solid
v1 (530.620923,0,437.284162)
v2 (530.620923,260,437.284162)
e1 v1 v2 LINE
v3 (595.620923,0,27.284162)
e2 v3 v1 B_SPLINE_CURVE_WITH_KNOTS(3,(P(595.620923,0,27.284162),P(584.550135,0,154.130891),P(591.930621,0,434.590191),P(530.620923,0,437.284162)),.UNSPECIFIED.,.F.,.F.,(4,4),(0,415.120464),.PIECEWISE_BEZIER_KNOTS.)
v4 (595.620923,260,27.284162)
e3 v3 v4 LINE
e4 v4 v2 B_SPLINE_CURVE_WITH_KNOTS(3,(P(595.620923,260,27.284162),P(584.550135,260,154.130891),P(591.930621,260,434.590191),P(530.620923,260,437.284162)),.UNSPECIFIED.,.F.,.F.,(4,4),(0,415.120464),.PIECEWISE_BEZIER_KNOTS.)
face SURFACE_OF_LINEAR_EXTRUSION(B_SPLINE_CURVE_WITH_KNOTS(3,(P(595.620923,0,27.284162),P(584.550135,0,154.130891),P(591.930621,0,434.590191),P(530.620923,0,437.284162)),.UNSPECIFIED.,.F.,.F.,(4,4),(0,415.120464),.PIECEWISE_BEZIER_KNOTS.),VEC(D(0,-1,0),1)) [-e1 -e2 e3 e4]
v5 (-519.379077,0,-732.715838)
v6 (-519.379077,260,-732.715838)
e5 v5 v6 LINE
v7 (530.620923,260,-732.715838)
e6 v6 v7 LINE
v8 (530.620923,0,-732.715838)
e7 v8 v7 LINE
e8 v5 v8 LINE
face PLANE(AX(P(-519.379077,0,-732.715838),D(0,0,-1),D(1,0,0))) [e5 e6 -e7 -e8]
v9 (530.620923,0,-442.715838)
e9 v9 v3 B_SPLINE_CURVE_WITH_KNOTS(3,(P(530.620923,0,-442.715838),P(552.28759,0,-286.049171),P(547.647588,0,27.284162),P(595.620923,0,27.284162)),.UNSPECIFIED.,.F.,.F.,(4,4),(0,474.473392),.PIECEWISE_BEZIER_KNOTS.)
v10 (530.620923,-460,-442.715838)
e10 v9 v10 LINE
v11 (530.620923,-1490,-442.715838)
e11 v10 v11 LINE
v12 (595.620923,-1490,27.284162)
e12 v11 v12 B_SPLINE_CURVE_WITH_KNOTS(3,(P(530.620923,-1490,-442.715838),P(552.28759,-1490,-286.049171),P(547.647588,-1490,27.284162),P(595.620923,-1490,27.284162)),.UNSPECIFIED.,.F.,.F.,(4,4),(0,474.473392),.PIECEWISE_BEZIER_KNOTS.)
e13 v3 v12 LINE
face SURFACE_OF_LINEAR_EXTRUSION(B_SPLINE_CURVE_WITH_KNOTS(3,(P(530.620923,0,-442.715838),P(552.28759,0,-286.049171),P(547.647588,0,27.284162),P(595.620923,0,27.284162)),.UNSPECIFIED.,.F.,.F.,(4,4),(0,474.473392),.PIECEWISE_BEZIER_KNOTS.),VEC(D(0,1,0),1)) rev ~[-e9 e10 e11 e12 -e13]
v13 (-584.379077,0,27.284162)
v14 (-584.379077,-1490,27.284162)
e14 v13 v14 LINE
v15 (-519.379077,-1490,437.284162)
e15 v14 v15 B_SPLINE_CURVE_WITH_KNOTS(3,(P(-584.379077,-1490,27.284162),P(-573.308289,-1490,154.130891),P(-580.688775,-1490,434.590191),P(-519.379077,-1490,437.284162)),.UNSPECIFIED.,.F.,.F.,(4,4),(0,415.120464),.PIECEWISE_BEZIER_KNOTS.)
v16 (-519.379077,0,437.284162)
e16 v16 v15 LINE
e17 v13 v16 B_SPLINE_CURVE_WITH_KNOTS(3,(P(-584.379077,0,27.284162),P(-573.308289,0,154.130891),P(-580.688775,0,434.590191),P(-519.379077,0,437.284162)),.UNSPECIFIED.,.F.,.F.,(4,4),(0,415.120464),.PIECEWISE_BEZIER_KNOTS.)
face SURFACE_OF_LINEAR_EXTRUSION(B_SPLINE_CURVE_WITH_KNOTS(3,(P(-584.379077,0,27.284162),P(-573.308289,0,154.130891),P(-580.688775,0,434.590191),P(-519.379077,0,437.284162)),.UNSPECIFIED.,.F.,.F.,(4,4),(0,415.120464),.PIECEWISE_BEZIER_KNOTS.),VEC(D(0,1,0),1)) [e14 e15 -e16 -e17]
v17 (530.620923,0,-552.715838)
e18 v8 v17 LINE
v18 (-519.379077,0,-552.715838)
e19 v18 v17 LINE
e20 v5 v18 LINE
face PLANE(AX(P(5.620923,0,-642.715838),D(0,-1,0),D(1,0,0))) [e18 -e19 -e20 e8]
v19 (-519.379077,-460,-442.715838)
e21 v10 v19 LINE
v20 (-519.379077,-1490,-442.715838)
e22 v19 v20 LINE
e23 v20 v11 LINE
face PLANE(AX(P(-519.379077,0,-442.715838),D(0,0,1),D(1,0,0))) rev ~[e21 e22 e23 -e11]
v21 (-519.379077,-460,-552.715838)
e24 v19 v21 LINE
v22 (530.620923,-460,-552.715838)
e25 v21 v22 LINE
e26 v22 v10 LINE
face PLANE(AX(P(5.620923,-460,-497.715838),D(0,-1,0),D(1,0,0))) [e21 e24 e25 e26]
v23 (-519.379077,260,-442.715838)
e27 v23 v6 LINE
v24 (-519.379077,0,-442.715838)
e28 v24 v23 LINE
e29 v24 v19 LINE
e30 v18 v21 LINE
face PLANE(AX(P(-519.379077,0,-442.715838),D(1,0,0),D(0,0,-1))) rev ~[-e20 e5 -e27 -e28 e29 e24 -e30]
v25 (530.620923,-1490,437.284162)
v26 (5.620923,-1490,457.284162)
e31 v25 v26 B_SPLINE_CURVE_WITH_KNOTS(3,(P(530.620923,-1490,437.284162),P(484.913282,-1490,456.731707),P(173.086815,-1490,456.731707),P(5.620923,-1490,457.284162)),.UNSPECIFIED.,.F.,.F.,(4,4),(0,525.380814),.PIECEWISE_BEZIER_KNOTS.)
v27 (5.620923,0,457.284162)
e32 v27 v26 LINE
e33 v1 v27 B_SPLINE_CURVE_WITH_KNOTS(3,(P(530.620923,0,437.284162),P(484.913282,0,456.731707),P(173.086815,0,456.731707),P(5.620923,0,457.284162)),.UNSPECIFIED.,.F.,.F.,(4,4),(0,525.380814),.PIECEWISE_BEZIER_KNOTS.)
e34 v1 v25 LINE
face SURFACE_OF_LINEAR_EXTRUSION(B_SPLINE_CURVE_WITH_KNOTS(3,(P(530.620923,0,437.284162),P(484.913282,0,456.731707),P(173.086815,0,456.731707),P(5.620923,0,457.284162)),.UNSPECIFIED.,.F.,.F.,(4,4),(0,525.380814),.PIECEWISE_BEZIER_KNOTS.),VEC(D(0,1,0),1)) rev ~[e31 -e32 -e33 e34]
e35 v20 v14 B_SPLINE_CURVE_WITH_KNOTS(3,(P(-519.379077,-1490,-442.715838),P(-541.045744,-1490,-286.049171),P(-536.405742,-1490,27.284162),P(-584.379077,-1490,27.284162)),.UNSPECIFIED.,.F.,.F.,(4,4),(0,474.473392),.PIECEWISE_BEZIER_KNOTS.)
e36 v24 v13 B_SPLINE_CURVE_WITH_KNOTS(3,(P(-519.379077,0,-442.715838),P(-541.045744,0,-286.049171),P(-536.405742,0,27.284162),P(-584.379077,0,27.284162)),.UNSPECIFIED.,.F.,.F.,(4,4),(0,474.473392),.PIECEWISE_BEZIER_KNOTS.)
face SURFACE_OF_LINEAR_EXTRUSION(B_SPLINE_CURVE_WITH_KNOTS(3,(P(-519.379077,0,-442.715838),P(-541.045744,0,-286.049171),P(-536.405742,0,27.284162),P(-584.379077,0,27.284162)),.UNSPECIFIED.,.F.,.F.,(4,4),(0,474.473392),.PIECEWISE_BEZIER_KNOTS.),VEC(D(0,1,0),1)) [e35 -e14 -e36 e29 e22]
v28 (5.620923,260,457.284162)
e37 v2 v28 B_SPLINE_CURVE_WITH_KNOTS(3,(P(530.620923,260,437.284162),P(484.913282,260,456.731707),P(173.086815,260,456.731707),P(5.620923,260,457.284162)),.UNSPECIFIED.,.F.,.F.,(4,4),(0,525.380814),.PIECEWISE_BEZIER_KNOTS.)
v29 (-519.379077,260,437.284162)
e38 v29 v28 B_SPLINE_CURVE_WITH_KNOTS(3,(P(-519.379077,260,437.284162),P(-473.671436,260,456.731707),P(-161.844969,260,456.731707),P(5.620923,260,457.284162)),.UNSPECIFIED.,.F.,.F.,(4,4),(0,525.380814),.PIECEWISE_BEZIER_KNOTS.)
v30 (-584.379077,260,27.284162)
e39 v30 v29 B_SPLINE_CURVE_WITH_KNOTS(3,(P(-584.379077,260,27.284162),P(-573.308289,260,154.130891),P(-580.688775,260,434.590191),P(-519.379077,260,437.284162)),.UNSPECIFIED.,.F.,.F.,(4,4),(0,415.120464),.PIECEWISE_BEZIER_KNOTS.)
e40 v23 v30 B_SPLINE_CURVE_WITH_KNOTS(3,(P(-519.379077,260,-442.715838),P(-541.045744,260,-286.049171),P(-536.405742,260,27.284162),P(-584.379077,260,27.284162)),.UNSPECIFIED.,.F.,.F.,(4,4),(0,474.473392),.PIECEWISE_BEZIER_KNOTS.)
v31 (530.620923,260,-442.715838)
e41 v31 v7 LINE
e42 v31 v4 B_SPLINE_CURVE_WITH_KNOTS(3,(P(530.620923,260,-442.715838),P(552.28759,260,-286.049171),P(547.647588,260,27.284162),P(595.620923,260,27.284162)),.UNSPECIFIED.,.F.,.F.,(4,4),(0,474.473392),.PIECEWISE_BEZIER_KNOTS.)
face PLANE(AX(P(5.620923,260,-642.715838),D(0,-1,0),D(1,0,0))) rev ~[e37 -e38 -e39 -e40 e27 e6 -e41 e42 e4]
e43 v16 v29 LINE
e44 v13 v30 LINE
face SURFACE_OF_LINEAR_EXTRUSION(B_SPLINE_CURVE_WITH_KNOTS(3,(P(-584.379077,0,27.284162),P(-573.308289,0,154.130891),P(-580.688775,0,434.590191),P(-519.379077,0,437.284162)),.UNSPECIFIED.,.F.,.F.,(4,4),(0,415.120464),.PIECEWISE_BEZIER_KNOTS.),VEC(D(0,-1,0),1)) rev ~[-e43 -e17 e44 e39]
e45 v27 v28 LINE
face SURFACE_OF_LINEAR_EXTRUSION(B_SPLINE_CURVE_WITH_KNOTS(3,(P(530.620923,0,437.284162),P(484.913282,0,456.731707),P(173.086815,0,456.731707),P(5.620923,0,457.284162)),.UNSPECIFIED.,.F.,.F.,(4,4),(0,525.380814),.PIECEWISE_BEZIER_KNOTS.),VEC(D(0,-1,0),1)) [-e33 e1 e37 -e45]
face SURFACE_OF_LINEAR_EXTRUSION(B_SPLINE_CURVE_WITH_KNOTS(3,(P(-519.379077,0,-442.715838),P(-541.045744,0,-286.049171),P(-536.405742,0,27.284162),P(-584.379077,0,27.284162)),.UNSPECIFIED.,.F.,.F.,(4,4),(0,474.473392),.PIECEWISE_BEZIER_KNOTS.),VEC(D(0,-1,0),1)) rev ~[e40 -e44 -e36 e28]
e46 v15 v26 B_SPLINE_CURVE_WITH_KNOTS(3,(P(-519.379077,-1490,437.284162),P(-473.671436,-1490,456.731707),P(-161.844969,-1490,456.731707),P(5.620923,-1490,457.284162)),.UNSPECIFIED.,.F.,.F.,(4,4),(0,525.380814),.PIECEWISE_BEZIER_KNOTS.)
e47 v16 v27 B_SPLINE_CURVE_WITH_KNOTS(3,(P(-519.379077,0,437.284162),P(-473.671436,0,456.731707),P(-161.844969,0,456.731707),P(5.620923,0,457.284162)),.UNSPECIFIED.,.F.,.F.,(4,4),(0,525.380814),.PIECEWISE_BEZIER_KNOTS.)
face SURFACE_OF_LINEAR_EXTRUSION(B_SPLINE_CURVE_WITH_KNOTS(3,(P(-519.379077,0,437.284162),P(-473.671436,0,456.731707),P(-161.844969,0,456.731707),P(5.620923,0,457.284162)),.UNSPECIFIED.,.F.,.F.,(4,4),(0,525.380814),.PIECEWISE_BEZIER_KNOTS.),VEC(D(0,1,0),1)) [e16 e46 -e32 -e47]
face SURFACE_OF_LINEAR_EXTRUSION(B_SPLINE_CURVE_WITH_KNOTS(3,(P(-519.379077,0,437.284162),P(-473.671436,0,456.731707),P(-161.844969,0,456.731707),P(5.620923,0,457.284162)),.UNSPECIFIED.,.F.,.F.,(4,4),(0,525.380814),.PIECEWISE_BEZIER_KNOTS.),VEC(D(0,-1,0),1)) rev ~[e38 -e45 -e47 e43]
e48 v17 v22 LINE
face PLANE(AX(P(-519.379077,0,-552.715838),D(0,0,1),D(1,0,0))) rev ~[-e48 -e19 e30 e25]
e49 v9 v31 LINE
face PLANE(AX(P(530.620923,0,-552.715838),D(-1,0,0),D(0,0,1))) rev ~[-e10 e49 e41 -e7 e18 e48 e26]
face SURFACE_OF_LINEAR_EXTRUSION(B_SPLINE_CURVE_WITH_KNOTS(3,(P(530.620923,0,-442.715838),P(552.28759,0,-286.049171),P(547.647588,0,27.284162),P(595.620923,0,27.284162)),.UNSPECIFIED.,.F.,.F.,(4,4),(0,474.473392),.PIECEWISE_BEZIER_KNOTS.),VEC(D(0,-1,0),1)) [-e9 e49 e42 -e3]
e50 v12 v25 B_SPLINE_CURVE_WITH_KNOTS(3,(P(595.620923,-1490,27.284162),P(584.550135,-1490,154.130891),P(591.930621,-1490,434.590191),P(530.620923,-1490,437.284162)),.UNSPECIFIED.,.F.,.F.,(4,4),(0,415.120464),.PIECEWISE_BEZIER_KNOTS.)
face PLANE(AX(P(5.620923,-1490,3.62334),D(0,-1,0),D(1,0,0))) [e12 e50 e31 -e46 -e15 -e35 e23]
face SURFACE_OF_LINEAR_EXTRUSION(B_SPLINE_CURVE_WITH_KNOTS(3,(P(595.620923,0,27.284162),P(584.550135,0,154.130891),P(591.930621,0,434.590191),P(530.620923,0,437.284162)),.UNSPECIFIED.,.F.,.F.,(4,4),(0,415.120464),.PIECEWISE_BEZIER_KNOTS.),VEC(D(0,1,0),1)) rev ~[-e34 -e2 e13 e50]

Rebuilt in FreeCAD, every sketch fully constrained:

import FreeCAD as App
import Part
import Sketcher


def add_polygon(sketch, points):
    """Adds a closed chain of lines whose ends are joined by coincident constraints."""
    first, n = sketch.GeometryCount, len(points)
    for a, b in zip(points, points[1:] + points[:1]):
        sketch.addGeometry(Part.LineSegment(App.Vector(*a, 0), App.Vector(*b, 0)), False)
    for i in range(n):
        sketch.addConstraint(Sketcher.Constraint("Coincident", first + i, 2, first + (i + 1) % n, 1))

doc = App.newDocument("Part")
params = doc.addObject("Spreadsheet::Sheet", "Params")
for row, (alias, value) in enumerate([
    ("pad1_length", "260 mm"),
    ("sketch2_width", "1050 mm"),
    ("sketch2_height", "110 mm"),
    ("pad2_length", "260 mm"),
    ("sketch3_width", "1050 mm"),
    ("sketch3_height", "180 mm"),
    ("pad3_length", "260 mm"),
    ("pad4_length", "1490 mm"),
    ("sketch5_width", "1050 mm"),
    ("sketch5_height", "110 mm"),
    ("pad5_length", "460 mm"),
], start=1):
    params.set(f"A{row}", alias)
    params.set(f"B{row}", "=" + value)
    params.setAlias(f"B{row}", alias)

body = doc.addObject("PartDesign::Body", "Body")

sketch1 = doc.addObject("Sketcher::SketchObject", "Sketch")
body.addObject(sketch1)
sketch1.AttachmentSupport = (doc.XZ_Plane, [""])
sketch1.MapMode = "FlatFace"
sketch1.addGeometry(Part.LineSegment(App.Vector(-519.379077, -442.715838, 0), App.Vector(530.620923, -442.715838, 0)), False)
sketch1.addGeometry(Part.BSplineCurve([App.Vector(530.620923, -442.715838, 0), App.Vector(552.28759, -286.049171, 0), App.Vector(547.647588, 27.284162, 0), App.Vector(595.620923, 27.284162, 0)], [4, 4], [0, 474.473392], False, 3, [1, 1, 1, 1], False), False)
sketch1.addGeometry(Part.BSplineCurve([App.Vector(595.620923, 27.284162, 0), App.Vector(584.550135, 154.130891, 0), App.Vector(591.930621, 434.590191, 0), App.Vector(530.620923, 437.284162, 0)], [4, 4], [0, 415.120464], False, 3, [1, 1, 1, 1], False), False)
sketch1.addGeometry(Part.BSplineCurve([App.Vector(530.620923, 437.284162, 0), App.Vector(484.913282, 456.731707, 0), App.Vector(173.086815, 456.731707, 0), App.Vector(5.620923, 457.284162, 0)], [4, 4], [0, 525.380814], False, 3, [1, 1, 1, 1], False), False)
sketch1.addGeometry(Part.BSplineCurve([App.Vector(-519.379077, 437.284162, 0), App.Vector(-473.671436, 456.731707, 0), App.Vector(-161.844969, 456.731707, 0), App.Vector(5.620923, 457.284162, 0)], [4, 4], [0, 525.380814], False, 3, [1, 1, 1, 1], False), False)
sketch1.addGeometry(Part.BSplineCurve([App.Vector(-584.379077, 27.284162, 0), App.Vector(-573.308289, 154.130891, 0), App.Vector(-580.688775, 434.590191, 0), App.Vector(-519.379077, 437.284162, 0)], [4, 4], [0, 415.120464], False, 3, [1, 1, 1, 1], False), False)
sketch1.addGeometry(Part.BSplineCurve([App.Vector(-519.379077, -442.715838, 0), App.Vector(-541.045744, -286.049171, 0), App.Vector(-536.405742, 27.284162, 0), App.Vector(-584.379077, 27.284162, 0)], [4, 4], [0, 474.473392], False, 3, [1, 1, 1, 1], False), False)
sketch1.addConstraint(Sketcher.Constraint("Block", 1))
sketch1.addConstraint(Sketcher.Constraint("Block", 2))
sketch1.addConstraint(Sketcher.Constraint("Block", 3))
sketch1.addConstraint(Sketcher.Constraint("Block", 4))
sketch1.addConstraint(Sketcher.Constraint("Block", 5))
sketch1.addConstraint(Sketcher.Constraint("Block", 6))
sketch1.addConstraint(Sketcher.Constraint("Coincident", 0, 2, 1, 1))
sketch1.addConstraint(Sketcher.Constraint("Coincident", 6, 1, 0, 1))
pad1 = doc.addObject("PartDesign::Pad", "Pad")
body.addObject(pad1)
pad1.Profile = sketch1
pad1.setExpression("Length", "Params.pad1_length")
pad1.Reversed = True

sketch2 = doc.addObject("Sketcher::SketchObject", "Sketch001")
body.addObject(sketch2)
sketch2.AttachmentSupport = (doc.XZ_Plane, [""])
sketch2.MapMode = "FlatFace"
add_polygon(sketch2, [(531, -443), (-519, -443), (-519, -553), (531, -553)])
sketch2.addConstraint(Sketcher.Constraint("Horizontal", 0))
sketch2.addConstraint(Sketcher.Constraint("Vertical", 1))
sketch2.addConstraint(Sketcher.Constraint("Horizontal", 2))
sketch2.addConstraint(Sketcher.Constraint("Vertical", 3))
sketch2.addConstraint(Sketcher.Constraint("DistanceX", 0, 2, 0, 1, 1050.0))
sketch2.addConstraint(Sketcher.Constraint("DistanceY", 1, 2, 1, 1, 110.0))
sketch2.addConstraint(Sketcher.Constraint("DistanceY", 0, 2, -1, 1, 442.715838))
sketch2.addConstraint(Sketcher.Constraint("DistanceX", 0, 2, -1, 1, 519.379077))
sketch2.setExpression("Constraints[8]", "Params.sketch2_width")
sketch2.setExpression("Constraints[9]", "Params.sketch2_height")
pad2 = doc.addObject("PartDesign::Pad", "Pad001")
body.addObject(pad2)
pad2.Profile = sketch2
pad2.setExpression("Length", "Params.pad2_length")
pad2.Reversed = True

sketch3 = doc.addObject("Sketcher::SketchObject", "Sketch002")
body.addObject(sketch3)
sketch3.AttachmentSupport = (doc.XZ_Plane, [""])
sketch3.MapMode = "FlatFace"
add_polygon(sketch3, [(-519, -553), (-519, -733), (531, -733), (531, -553)])
sketch3.addConstraint(Sketcher.Constraint("Vertical", 0))
sketch3.addConstraint(Sketcher.Constraint("Horizontal", 1))
sketch3.addConstraint(Sketcher.Constraint("Vertical", 2))
sketch3.addConstraint(Sketcher.Constraint("Horizontal", 3))
sketch3.addConstraint(Sketcher.Constraint("DistanceX", 1, 1, 1, 2, 1050.0))
sketch3.addConstraint(Sketcher.Constraint("DistanceY", 0, 2, 0, 1, 180.0))
sketch3.addConstraint(Sketcher.Constraint("DistanceY", 0, 2, -1, 1, 732.715838))
sketch3.addConstraint(Sketcher.Constraint("DistanceX", 0, 2, -1, 1, 519.379077))
sketch3.setExpression("Constraints[8]", "Params.sketch3_width")
sketch3.setExpression("Constraints[9]", "Params.sketch3_height")
pad3 = doc.addObject("PartDesign::Pad", "Pad002")
body.addObject(pad3)
pad3.Profile = sketch3
pad3.setExpression("Length", "Params.pad3_length")
pad3.Reversed = True

sketch4 = doc.addObject("Sketcher::SketchObject", "Sketch003")
body.addObject(sketch4)
sketch4.AttachmentSupport = (doc.XZ_Plane, [""])
sketch4.MapMode = "FlatFace"
sketch4.addGeometry(Part.LineSegment(App.Vector(-519.379077, -442.715838, 0), App.Vector(530.620923, -442.715838, 0)), False)
sketch4.addGeometry(Part.BSplineCurve([App.Vector(530.620923, -442.715838, 0), App.Vector(552.28759, -286.049171, 0), App.Vector(547.647588, 27.284162, 0), App.Vector(595.620923, 27.284162, 0)], [4, 4], [0, 474.473392], False, 3, [1, 1, 1, 1], False), False)
sketch4.addGeometry(Part.BSplineCurve([App.Vector(595.620923, 27.284162, 0), App.Vector(584.550135, 154.130891, 0), App.Vector(591.930621, 434.590191, 0), App.Vector(530.620923, 437.284162, 0)], [4, 4], [0, 415.120464], False, 3, [1, 1, 1, 1], False), False)
sketch4.addGeometry(Part.BSplineCurve([App.Vector(530.620923, 437.284162, 0), App.Vector(484.913282, 456.731707, 0), App.Vector(173.086815, 456.731707, 0), App.Vector(5.620923, 457.284162, 0)], [4, 4], [0, 525.380814], False, 3, [1, 1, 1, 1], False), False)
sketch4.addGeometry(Part.BSplineCurve([App.Vector(-519.379077, 437.284162, 0), App.Vector(-473.671436, 456.731707, 0), App.Vector(-161.844969, 456.731707, 0), App.Vector(5.620923, 457.284162, 0)], [4, 4], [0, 525.380814], False, 3, [1, 1, 1, 1], False), False)
sketch4.addGeometry(Part.BSplineCurve([App.Vector(-584.379077, 27.284162, 0), App.Vector(-573.308289, 154.130891, 0), App.Vector(-580.688775, 434.590191, 0), App.Vector(-519.379077, 437.284162, 0)], [4, 4], [0, 415.120464], False, 3, [1, 1, 1, 1], False), False)
sketch4.addGeometry(Part.BSplineCurve([App.Vector(-519.379077, -442.715838, 0), App.Vector(-541.045744, -286.049171, 0), App.Vector(-536.405742, 27.284162, 0), App.Vector(-584.379077, 27.284162, 0)], [4, 4], [0, 474.473392], False, 3, [1, 1, 1, 1], False), False)
sketch4.addConstraint(Sketcher.Constraint("Block", 1))
sketch4.addConstraint(Sketcher.Constraint("Block", 2))
sketch4.addConstraint(Sketcher.Constraint("Block", 3))
sketch4.addConstraint(Sketcher.Constraint("Block", 4))
sketch4.addConstraint(Sketcher.Constraint("Block", 5))
sketch4.addConstraint(Sketcher.Constraint("Block", 6))
sketch4.addConstraint(Sketcher.Constraint("Coincident", 0, 2, 1, 1))
sketch4.addConstraint(Sketcher.Constraint("Coincident", 6, 1, 0, 1))
pad4 = doc.addObject("PartDesign::Pad", "Pad003")
body.addObject(pad4)
pad4.Profile = sketch4
pad4.setExpression("Length", "Params.pad4_length")

sketch5 = doc.addObject("Sketcher::SketchObject", "Sketch004")
body.addObject(sketch5)
sketch5.AttachmentSupport = (doc.XZ_Plane, [""])
sketch5.MapMode = "FlatFace"
add_polygon(sketch5, [(531, -443), (-519, -443), (-519, -553), (531, -553)])
sketch5.addConstraint(Sketcher.Constraint("Horizontal", 0))
sketch5.addConstraint(Sketcher.Constraint("Vertical", 1))
sketch5.addConstraint(Sketcher.Constraint("Horizontal", 2))
sketch5.addConstraint(Sketcher.Constraint("Vertical", 3))
sketch5.addConstraint(Sketcher.Constraint("DistanceX", 0, 2, 0, 1, 1050.0))
sketch5.addConstraint(Sketcher.Constraint("DistanceY", 1, 2, 1, 1, 110.0))
sketch5.addConstraint(Sketcher.Constraint("DistanceY", 0, 2, -1, 1, 442.715838))
sketch5.addConstraint(Sketcher.Constraint("DistanceX", 0, 2, -1, 1, 519.379077))
sketch5.setExpression("Constraints[8]", "Params.sketch5_width")
sketch5.setExpression("Constraints[9]", "Params.sketch5_height")
pad5 = doc.addObject("PartDesign::Pad", "Pad004")
body.addObject(pad5)
pad5.Profile = sketch5
pad5.setExpression("Length", "Params.pad5_length")

doc.recompute()
